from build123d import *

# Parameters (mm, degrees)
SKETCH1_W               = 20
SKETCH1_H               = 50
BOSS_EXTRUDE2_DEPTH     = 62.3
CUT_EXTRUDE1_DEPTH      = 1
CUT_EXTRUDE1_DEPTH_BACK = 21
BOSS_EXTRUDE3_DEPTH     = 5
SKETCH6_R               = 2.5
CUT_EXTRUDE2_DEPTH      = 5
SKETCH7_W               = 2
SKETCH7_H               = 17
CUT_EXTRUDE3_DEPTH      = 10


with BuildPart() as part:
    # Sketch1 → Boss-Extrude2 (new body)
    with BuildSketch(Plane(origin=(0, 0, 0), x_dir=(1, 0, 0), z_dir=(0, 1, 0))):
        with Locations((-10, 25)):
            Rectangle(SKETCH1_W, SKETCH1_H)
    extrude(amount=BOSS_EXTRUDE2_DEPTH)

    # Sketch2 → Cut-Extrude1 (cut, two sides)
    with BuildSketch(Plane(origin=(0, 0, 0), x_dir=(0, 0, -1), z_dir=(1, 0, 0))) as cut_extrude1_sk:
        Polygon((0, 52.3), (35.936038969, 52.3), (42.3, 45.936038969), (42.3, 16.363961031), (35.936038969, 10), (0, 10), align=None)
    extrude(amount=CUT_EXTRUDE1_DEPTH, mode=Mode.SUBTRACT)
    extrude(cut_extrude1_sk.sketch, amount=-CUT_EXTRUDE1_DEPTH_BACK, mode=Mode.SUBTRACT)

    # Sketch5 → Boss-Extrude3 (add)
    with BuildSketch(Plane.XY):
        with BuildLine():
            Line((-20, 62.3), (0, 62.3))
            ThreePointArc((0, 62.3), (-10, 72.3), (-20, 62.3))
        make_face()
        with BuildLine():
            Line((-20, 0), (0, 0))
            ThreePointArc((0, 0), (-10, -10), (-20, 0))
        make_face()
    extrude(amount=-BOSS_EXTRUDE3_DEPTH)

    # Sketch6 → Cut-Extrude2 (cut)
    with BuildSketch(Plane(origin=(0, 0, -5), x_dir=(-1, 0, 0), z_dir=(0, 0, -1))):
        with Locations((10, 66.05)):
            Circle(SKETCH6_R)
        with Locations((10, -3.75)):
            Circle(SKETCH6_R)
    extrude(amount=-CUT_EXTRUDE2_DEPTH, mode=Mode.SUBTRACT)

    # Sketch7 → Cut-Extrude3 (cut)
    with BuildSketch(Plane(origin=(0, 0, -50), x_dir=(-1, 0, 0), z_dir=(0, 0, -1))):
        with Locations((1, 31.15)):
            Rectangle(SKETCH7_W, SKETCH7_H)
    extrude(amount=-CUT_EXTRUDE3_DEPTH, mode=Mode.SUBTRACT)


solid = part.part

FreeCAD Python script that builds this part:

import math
import FreeCAD as App
import Part
import Sketcher

doc = App.newDocument("Part")
body = doc.addObject("PartDesign::Body", "Body")

sketch1 = doc.addObject("Sketcher::SketchObject", "Sketch")
body.addObject(sketch1)
sketch1.AttachmentSupport = (doc.XZ_Plane, [""])
sketch1.MapMode = "FlatFace"
sketch1.addGeometry([
    Part.LineSegment(App.Vector(-20, -50, 0), App.Vector(-20, 0, 0)),
    Part.LineSegment(App.Vector(-20, 0, 0), App.Vector(0, 0, 0)),
    Part.LineSegment(App.Vector(0, 0, 0), App.Vector(0, -50, 0)),
    Part.LineSegment(App.Vector(0, -50, 0), App.Vector(-20, -50, 0)),
], False)
sketch1.addConstraint([
    Sketcher.Constraint("Coincident", 0, 2, 1, 1),
    Sketcher.Constraint("Coincident", 1, 2, 2, 1),
    Sketcher.Constraint("Coincident", 2, 2, 3, 1),
    Sketcher.Constraint("Coincident", 3, 2, 0, 1),
    Sketcher.Constraint("Vertical", 0),
    Sketcher.Constraint("Horizontal", 1),
    Sketcher.Constraint("Vertical", 2),
    Sketcher.Constraint("Horizontal", 3),
    Sketcher.Constraint("Coincident", 1, 2, -1, 1),
    Sketcher.Constraint("DistanceX", 1, 1, 1, 2, 20.0),
    Sketcher.Constraint("DistanceY", 0, 1, 0, 2, 50.0),
])
pad1 = doc.addObject("PartDesign::Pad", "Pad")
body.addObject(pad1)
pad1.Profile = sketch1
pad1.Length = 62.3
pad1.Reversed = True

sketch2 = doc.addObject("Sketcher::SketchObject", "Sketch001")
body.addObject(sketch2)
sketch2.AttachmentSupport = (doc.YZ_Plane, [""])
sketch2.MapMode = "FlatFace"
sketch2.addGeometry([
    Part.LineSegment(App.Vector(52, -36, 0), App.Vector(52, 0, 0)),
    Part.LineSegment(App.Vector(52, 0, 0), App.Vector(10, 0, 0)),
    Part.LineSegment(App.Vector(10, 0, 0), App.Vector(10, -36, 0)),
    Part.LineSegment(App.Vector(10, -36, 0), App.Vector(16, -42, 0)),
    Part.LineSegment(App.Vector(16, -42, 0), App.Vector(46, -42, 0)),
    Part.LineSegment(App.Vector(46, -42, 0), App.Vector(52, -36, 0)),
], False)
sketch2.addConstraint([
    Sketcher.Constraint("Coincident", 0, 2, 1, 1),
    Sketcher.Constraint("Coincident", 1, 2, 2, 1),
    Sketcher.Constraint("Coincident", 2, 2, 3, 1),
    Sketcher.Constraint("Coincident", 3, 2, 4, 1),
    Sketcher.Constraint("Coincident", 4, 2, 5, 1),
    Sketcher.Constraint("Coincident", 5, 2, 0, 1),
    Sketcher.Constraint("Vertical", 0),
    Sketcher.Constraint("Horizontal", 1),
    Sketcher.Constraint("Vertical", 2),
    Sketcher.Constraint("Horizontal", 4),
    Sketcher.Constraint("PointOnObject", 0, 2, -1),
    Sketcher.Constraint("Perpendicular", 3, 5),
    Sketcher.Constraint("Horizontal", 2, 2, 5, 2),
    Sketcher.Constraint("Equal", 3, 5),
    Sketcher.Constraint("Distance", 3, 9.0),
    Sketcher.Constraint("DistanceX", 1, 2, 1, 1, 42.3),
    Sketcher.Constraint("DistanceX", -1, 1, 1, 2, 10.0),
    Sketcher.Constraint("DistanceY", 3, 2, -1, 1, 42.3),
])
pocket1 = doc.addObject("PartDesign::Pocket", "Pocket")
body.addObject(pocket1)
pocket1.Profile = sketch2
pocket1.Type = "ThroughAll"
pocket1.Midplane = True

sketch3 = doc.addObject("Sketcher::SketchObject", "Sketch002")
body.addObject(sketch3)
sketch3.AttachmentSupport = (doc.XY_Plane, [""])
sketch3.MapMode = "FlatFace"
sketch3.addGeometry([
    Part.LineSegment(App.Vector(-20, 62, 0), App.Vector(0, 62, 0)),
    Part.ArcOfCircle(Part.Circle(App.Vector(-10, 62, 0), App.Vector(0, 0, 1), 10), math.radians(0), math.radians(180)),
    Part.LineSegment(App.Vector(0, 0, 0), App.Vector(-20, 0, 0)),
    Part.ArcOfCircle(Part.Circle(App.Vector(-10, 0, 0), App.Vector(0, 0, 1), 10), math.radians(180), math.radians(360)),
], False)
sketch3.addConstraint([
    Sketcher.Constraint("Coincident", 0, 1, 1, 2),
    Sketcher.Constraint("Coincident", 1, 1, 0, 2),
    Sketcher.Constraint("Coincident", 2, 1, 3, 2),
    Sketcher.Constraint("Coincident", 3, 1, 2, 2),
    Sketcher.Constraint("Horizontal", 0),
    Sketcher.Constraint("Horizontal", 2),
    Sketcher.Constraint("Coincident", 2, 1, -1, 1),
    Sketcher.Constraint("Equal", 1, 3),
    Sketcher.Constraint("PointOnObject", 3, 3, -1),
    Sketcher.Constraint("PointOnObject", 1, 1, -2),
    Sketcher.Constraint("Horizontal", 1, 3, 0, 1),
    Sketcher.Constraint("Radius", 1, 10.0),
    Sketcher.Constraint("DistanceY", -1, 1, 1, 3, 62.3),
])
pad2 = doc.addObject("PartDesign::Pad", "Pad001")
body.addObject(pad2)
pad2.Profile = sketch3
pad2.Length = 5
pad2.Reversed = True

sketch4 = doc.addObject("Sketcher::SketchObject", "Sketch003")
body.addObject(sketch4)
sketch4.AttachmentSupport = (doc.XY_Plane, [""])
sketch4.MapMode = "FlatFace"
sketch4.AttachmentOffset = App.Placement(App.Vector(0, 0, -5), App.Rotation())
sketch4.addGeometry([
    Part.Circle(App.Vector(-10, 66, 0), App.Vector(0, 0, 1), 2.5),
    Part.Circle(App.Vector(-10, -3.8, 0), App.Vector(0, 0, 1), 2.5),
], False)
sketch4.addConstraint([
    Sketcher.Constraint("Equal", 0, 1),
    Sketcher.Constraint("Vertical", 0, 3, 1, 3),
    Sketcher.Constraint("Diameter", 0, 5.0),
    Sketcher.Constraint("DistanceX", 0, 3, -1, 1, 10.0),
    Sketcher.Constraint("DistanceY", 1, 3, 0, 3, 69.8),
    Sketcher.Constraint("DistanceY", -1, 1, 0, 3, 66.05),
])
pocket2 = doc.addObject("PartDesign::Pocket", "Pocket001")
body.addObject(pocket2)
pocket2.Profile = sketch4
pocket2.Length = 5
pocket2.Reversed = True

sketch5 = doc.addObject("Sketcher::SketchObject", "Sketch004")
body.addObject(sketch5)
sketch5.AttachmentSupport = (doc.XY_Plane, [""])
sketch5.MapMode = "FlatFace"
sketch5.AttachmentOffset = App.Placement(App.Vector(0, 0, -50), App.Rotation())
sketch5.addGeometry([
    Part.LineSegment(App.Vector(0, 39.6, 0), App.Vector(0, 22.6, 0)),
    Part.LineSegment(App.Vector(0, 22.6, 0), App.Vector(-2, 22.6, 0)),
    Part.LineSegment(App.Vector(-2, 22.6, 0), App.Vector(-2, 39.6, 0)),
    Part.LineSegment(App.Vector(-2, 39.6, 0), App.Vector(0, 39.6, 0)),
], False)
sketch5.addConstraint([
    Sketcher.Constraint("Coincident", 0, 2, 1, 1),
    Sketcher.Constraint("Coincident", 1, 2, 2, 1),
    Sketcher.Constraint("Coincident", 2, 2, 3, 1),
    Sketcher.Constraint("Coincident", 3, 2, 0, 1),
    Sketcher.Constraint("Vertical", 0),
    Sketcher.Constraint("Horizontal", 1),
    Sketcher.Constraint("Vertical", 2),
    Sketcher.Constraint("Horizontal", 3),
    Sketcher.Constraint("PointOnObject", 0, 2, -2),
    Sketcher.Constraint("DistanceX", 1, 2, 1, 1, 2.0),
    Sketcher.Constraint("DistanceY", 0, 2, 0, 1, 17.0),
    Sketcher.Constraint("DistanceY", -1, 1, 0, 2, 22.65),
])
pocket3 = doc.addObject("PartDesign::Pocket", "Pocket002")
body.addObject(pocket3)
pocket3.Profile = sketch5
pocket3.Length = 10
pocket3.Reversed = True

doc.recompute()
